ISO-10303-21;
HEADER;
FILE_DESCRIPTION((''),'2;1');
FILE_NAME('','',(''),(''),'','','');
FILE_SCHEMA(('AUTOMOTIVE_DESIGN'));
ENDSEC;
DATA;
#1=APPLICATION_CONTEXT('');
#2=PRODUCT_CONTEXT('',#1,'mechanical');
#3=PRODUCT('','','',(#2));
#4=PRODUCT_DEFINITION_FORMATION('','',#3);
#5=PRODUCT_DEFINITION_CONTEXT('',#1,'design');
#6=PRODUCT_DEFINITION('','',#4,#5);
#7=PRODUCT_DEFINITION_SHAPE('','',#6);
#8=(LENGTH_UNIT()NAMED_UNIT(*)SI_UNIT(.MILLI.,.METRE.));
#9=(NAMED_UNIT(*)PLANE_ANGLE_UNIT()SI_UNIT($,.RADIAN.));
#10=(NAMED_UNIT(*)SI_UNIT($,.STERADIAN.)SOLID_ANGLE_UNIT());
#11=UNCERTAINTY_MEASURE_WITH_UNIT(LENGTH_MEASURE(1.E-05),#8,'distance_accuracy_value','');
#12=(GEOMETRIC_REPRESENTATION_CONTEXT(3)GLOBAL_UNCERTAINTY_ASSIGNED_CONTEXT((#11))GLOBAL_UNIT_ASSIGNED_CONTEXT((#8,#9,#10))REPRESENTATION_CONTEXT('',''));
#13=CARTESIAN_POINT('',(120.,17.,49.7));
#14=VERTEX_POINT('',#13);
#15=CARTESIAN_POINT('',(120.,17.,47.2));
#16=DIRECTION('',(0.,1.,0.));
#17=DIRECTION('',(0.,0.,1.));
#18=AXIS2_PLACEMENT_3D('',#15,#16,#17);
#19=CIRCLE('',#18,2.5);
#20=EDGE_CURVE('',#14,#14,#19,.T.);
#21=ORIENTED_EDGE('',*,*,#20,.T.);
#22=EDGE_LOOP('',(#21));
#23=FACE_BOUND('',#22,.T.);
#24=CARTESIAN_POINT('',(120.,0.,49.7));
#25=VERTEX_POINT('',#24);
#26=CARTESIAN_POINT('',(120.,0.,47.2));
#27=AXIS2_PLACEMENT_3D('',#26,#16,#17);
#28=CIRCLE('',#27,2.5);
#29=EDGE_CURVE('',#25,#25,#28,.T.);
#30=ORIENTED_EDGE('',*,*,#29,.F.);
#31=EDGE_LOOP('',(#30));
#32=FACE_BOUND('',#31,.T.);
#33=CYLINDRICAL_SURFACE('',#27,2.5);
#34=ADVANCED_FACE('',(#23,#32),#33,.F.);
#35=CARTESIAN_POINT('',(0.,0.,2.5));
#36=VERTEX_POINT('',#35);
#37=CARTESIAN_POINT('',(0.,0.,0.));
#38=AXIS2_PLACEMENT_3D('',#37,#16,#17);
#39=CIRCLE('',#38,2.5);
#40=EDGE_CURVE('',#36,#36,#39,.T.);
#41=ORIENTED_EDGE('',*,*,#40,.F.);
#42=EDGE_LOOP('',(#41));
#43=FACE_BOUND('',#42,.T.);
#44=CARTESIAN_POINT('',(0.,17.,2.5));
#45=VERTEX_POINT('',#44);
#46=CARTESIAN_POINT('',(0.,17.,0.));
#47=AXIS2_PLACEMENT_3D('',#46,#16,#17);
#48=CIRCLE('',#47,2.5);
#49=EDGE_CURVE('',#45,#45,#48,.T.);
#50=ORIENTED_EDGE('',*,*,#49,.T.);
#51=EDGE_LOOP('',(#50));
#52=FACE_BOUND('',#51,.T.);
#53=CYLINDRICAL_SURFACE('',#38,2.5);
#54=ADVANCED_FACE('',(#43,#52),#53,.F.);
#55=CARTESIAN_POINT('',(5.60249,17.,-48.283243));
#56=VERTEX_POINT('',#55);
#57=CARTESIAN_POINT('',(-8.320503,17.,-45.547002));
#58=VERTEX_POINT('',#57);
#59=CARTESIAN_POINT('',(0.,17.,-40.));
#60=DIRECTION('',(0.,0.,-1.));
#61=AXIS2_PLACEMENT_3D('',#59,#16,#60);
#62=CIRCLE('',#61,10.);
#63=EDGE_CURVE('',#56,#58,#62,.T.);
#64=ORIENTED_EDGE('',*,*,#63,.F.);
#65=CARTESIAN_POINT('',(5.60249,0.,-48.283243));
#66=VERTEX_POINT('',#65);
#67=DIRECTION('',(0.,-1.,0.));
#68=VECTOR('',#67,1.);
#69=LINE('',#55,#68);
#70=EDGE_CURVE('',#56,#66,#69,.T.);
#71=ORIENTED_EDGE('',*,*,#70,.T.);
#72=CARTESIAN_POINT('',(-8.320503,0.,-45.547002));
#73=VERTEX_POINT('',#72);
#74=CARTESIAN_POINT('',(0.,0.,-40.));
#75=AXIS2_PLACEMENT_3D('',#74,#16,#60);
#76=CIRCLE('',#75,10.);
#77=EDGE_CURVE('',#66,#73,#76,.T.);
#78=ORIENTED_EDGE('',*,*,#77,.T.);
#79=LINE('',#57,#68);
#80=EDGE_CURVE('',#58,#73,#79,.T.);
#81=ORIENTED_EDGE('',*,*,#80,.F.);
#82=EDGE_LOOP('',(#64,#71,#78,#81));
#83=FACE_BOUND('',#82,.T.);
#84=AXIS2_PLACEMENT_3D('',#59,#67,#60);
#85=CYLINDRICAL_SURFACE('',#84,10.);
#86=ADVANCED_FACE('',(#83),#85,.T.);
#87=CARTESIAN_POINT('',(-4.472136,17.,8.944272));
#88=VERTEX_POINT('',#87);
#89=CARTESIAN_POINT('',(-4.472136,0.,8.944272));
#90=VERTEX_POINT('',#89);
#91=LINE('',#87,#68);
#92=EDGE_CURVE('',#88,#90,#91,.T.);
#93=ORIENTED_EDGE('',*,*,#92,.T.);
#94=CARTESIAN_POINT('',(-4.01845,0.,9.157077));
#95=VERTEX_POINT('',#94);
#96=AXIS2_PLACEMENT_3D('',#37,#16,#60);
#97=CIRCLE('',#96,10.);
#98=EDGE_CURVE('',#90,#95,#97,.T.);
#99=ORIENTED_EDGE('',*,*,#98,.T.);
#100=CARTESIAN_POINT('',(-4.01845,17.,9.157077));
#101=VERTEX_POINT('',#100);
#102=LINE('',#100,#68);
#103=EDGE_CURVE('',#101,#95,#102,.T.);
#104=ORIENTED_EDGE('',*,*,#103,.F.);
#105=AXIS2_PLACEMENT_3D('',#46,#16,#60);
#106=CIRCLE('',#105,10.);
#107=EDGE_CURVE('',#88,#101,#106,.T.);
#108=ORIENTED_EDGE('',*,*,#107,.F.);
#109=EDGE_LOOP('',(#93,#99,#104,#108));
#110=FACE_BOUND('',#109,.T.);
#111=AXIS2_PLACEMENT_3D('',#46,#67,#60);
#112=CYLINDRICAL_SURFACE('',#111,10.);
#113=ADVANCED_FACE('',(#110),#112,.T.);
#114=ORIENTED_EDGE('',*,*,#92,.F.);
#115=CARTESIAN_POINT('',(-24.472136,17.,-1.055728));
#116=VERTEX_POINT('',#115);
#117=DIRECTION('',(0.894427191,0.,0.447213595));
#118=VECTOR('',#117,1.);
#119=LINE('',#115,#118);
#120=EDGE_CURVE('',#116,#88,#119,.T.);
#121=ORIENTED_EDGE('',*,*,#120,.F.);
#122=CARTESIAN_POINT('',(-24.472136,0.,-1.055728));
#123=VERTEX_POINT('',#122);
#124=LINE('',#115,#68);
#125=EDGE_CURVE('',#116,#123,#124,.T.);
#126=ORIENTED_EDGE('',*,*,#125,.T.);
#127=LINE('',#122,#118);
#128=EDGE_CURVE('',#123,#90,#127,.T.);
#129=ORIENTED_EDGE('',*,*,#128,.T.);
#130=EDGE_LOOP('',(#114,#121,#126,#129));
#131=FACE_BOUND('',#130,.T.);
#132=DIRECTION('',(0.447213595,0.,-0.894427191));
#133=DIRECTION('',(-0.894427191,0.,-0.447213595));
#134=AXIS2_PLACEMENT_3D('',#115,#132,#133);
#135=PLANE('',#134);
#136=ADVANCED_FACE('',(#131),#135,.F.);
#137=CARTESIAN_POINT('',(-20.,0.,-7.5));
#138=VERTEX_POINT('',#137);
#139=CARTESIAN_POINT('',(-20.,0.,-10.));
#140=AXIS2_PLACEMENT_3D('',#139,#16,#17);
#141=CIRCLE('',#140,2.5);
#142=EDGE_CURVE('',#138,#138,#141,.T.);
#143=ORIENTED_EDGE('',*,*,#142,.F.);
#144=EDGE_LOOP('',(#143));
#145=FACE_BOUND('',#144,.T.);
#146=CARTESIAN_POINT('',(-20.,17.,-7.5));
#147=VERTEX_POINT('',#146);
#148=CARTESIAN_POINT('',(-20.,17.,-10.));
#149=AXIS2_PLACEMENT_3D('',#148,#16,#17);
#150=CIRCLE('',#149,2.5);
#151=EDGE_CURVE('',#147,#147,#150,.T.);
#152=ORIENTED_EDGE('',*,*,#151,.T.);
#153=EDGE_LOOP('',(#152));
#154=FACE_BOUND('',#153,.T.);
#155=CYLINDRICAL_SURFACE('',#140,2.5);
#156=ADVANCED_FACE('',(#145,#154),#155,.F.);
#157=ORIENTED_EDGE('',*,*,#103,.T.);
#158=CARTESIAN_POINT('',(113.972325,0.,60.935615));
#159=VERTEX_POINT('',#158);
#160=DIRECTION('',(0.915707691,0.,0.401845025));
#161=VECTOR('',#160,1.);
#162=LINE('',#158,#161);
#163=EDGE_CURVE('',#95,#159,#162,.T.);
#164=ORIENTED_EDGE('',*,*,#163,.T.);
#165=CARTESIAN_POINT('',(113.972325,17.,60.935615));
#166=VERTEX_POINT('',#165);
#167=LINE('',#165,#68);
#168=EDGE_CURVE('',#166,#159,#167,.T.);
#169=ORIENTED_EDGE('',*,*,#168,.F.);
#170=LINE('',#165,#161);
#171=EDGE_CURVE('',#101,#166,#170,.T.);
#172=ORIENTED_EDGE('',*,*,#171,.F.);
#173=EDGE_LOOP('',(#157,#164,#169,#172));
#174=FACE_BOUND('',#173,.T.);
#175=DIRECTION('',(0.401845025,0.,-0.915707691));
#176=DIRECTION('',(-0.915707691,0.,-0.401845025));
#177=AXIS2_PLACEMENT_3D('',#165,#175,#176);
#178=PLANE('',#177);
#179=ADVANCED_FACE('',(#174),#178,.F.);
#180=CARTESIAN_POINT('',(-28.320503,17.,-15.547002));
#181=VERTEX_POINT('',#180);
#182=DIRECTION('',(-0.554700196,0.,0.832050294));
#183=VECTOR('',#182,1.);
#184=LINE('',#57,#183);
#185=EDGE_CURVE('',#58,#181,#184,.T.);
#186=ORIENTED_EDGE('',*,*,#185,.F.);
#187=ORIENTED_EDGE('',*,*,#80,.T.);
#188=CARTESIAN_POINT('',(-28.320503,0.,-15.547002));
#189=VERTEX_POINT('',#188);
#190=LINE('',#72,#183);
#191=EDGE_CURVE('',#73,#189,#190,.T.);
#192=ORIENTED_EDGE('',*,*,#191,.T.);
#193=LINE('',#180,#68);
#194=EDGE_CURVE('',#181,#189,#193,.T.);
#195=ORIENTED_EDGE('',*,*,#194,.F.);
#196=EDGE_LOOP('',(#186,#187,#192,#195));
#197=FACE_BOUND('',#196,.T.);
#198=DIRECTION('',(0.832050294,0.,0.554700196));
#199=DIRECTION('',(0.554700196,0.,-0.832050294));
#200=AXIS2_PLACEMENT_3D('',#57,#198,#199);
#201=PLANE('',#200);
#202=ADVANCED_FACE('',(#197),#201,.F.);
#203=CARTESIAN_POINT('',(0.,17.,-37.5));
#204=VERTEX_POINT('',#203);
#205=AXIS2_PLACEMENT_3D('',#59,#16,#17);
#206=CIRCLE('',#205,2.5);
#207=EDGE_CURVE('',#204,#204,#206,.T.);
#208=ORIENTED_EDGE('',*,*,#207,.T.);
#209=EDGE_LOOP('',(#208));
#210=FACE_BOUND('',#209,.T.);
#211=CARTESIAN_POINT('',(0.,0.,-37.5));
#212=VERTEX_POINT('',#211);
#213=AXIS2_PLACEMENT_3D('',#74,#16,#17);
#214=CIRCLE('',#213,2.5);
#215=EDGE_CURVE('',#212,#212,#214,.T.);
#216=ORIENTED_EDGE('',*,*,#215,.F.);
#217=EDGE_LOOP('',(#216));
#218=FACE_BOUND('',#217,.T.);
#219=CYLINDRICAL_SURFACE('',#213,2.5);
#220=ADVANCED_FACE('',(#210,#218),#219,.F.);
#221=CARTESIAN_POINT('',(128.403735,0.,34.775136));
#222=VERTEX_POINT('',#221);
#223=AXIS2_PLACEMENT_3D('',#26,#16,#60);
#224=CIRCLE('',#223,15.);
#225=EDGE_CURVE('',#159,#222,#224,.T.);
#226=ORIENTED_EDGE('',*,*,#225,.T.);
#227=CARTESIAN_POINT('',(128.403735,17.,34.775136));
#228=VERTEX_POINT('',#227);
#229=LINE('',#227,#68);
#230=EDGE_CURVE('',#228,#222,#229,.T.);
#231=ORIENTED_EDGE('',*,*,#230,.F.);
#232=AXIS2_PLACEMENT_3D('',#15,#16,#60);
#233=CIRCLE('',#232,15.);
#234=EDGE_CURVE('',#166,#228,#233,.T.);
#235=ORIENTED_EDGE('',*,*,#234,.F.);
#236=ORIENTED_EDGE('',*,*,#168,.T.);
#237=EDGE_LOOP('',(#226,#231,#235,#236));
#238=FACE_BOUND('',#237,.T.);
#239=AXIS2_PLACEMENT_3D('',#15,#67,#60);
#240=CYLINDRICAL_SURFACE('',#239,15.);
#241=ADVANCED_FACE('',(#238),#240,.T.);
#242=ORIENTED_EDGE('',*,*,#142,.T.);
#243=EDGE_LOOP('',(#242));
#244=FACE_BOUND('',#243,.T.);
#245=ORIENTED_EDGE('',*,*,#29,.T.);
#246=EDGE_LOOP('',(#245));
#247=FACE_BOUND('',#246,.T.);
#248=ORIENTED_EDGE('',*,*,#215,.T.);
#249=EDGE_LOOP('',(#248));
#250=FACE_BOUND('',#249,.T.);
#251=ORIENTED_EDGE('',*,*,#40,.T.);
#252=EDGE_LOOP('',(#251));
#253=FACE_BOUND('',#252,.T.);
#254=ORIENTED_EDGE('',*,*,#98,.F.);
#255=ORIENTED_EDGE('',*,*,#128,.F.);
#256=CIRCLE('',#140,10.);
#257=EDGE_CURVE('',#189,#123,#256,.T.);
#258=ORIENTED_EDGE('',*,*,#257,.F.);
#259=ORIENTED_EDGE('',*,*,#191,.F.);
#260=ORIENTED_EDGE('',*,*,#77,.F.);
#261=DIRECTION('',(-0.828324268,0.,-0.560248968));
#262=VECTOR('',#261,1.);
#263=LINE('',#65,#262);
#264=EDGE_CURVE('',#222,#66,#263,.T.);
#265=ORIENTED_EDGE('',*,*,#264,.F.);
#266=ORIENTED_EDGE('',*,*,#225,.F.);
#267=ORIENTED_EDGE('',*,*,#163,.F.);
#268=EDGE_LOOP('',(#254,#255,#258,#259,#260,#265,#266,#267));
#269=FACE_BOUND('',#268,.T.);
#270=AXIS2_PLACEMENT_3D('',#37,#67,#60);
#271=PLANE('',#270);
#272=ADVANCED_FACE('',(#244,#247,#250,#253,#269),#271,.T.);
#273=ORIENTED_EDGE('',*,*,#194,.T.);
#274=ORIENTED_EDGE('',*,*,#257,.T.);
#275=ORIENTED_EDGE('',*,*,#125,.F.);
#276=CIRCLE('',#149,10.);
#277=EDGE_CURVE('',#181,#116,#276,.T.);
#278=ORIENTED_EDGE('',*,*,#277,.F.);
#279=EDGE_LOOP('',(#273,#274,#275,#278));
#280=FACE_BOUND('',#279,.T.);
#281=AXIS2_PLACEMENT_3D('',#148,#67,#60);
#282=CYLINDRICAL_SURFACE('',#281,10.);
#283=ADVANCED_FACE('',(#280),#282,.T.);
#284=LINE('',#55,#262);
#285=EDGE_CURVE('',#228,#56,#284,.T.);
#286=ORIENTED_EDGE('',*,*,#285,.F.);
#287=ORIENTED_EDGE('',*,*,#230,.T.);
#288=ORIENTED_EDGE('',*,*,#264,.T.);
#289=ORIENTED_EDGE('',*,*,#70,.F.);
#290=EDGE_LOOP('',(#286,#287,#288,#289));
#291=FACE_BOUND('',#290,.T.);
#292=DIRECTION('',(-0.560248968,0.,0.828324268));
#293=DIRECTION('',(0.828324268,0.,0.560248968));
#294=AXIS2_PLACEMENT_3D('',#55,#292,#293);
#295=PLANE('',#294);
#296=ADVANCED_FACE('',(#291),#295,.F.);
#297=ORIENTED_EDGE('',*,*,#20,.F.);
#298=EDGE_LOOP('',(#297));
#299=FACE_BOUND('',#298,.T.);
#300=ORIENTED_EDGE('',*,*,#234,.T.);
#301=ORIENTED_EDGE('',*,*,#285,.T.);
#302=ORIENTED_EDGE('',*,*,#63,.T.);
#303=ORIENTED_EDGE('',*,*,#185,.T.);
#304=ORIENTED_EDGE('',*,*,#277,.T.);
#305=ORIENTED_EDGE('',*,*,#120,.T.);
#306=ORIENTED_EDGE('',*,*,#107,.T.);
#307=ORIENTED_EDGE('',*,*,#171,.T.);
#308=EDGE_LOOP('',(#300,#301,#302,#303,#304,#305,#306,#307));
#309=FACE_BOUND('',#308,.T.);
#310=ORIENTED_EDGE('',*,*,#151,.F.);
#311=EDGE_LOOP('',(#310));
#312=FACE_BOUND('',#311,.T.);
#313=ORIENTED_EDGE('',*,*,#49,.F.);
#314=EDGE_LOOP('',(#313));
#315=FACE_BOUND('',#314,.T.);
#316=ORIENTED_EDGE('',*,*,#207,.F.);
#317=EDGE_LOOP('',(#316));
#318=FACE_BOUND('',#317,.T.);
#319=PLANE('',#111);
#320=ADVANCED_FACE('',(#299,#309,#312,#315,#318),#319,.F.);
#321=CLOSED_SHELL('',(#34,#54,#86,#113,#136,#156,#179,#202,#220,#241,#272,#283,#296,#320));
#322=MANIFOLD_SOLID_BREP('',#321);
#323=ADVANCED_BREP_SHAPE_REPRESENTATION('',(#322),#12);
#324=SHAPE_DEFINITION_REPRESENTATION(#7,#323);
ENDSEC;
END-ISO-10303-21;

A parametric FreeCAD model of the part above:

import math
import FreeCAD as App
import Part
import Sketcher

V = App.Vector

doc = App.newDocument("Part")
body = doc.addObject("PartDesign::Body", "Body")

# Sketch on XZ plane
sketch1 = body.newObject("Sketcher::SketchObject", "Sketch")
sketch1.AttachmentSupport = (doc.getObject("XZ_Plane"), [""])
sketch1.MapMode = "FlatFace"
sketch1.addGeometry(Part.LineSegment(V(128.403735, 34.775136, 0), V(5.60249, -48.283243, 0)), False)
sketch1.addGeometry(Part.ArcOfCircle(Part.Circle(V(0, -40, 0), V(0, 0, 1), 10), math.radians(-146.309932), math.radians(-55.926983)), False)
sketch1.addGeometry(Part.LineSegment(V(-8.320503, -45.547002, 0), V(-28.320503, -15.547002, 0)), False)
sketch1.addGeometry(Part.ArcOfCircle(Part.Circle(V(-20, -10, 0), V(0, 0, 1), 10), math.radians(116.565051), math.radians(213.690068)), False)
sketch1.addGeometry(Part.LineSegment(V(-24.472136, -1.055728, 0), V(-4.472136, 8.944272, 0)), False)
sketch1.addGeometry(Part.ArcOfCircle(Part.Circle(V(0, 0.000001, 0), V(0, 0, 1), 9.999999), math.radians(113.693571), math.radians(116.565051)), False)
sketch1.addGeometry(Part.LineSegment(V(-4.01845, 9.157077, 0), V(113.972325, 60.935615, 0)), False)
sketch1.addGeometry(Part.ArcOfCircle(Part.Circle(V(120, 47.2, 0), V(0, 0, 1), 15), math.radians(-55.926983), math.radians(113.693571)), False)
sketch1.addConstraint(Sketcher.Constraint("Tangent", 0, 2, 1, 2))
sketch1.addConstraint(Sketcher.Constraint("Tangent", 1, 1, 2, 1))
sketch1.addConstraint(Sketcher.Constraint("Tangent", 2, 2, 3, 2))
sketch1.addConstraint(Sketcher.Constraint("Tangent", 3, 1, 4, 1))
sketch1.addConstraint(Sketcher.Constraint("Tangent", 4, 2, 5, 2))
sketch1.addConstraint(Sketcher.Constraint("Tangent", 5, 1, 6, 1))
sketch1.addConstraint(Sketcher.Constraint("Tangent", 6, 2, 7, 2))
sketch1.addConstraint(Sketcher.Constraint("Tangent", 7, 1, 0, 1))
sketch1.addConstraint(Sketcher.Constraint("Coincident", 5, 3, -1, 1))
sketch1.addConstraint(Sketcher.Constraint("Equal", 1, 3))
sketch1.addConstraint(Sketcher.Constraint("Equal", 3, 5))
sketch1.addConstraint(Sketcher.Constraint("PointOnObject", 1, 3, -2))
sketch1.addConstraint(Sketcher.Constraint("Radius", 1, 10.0))
sketch1.addConstraint(Sketcher.Constraint("Radius", 7, 15.0))
sketch1.addConstraint(Sketcher.Constraint("DistanceY", 1, 3, -1, 1, 40.0))
sketch1.addConstraint(Sketcher.Constraint("DistanceX", 3, 3, -1, 1, 20.0))
sketch1.addConstraint(Sketcher.Constraint("DistanceY", 3, 3, -1, 1, 10.0))
sketch1.addConstraint(Sketcher.Constraint("DistanceX", -1, 1, 7, 3, 120.0))
sketch1.addConstraint(Sketcher.Constraint("DistanceY", -1, 1, 7, 3, 47.2))
pad1 = body.newObject("PartDesign::Pad", "Pad")
pad1.Profile = sketch1
pad1.Length = 17
pad1.Reversed = True

# Sketch on XZ plane
sketch2 = body.newObject("Sketcher::SketchObject", "Sketch001")
sketch2.AttachmentSupport = (doc.getObject("XZ_Plane"), [""])
sketch2.MapMode = "FlatFace"
sketch2.AttachmentOffset = App.Placement(V(0, 0, -17), App.Rotation())
sketch2.addGeometry(Part.Circle(V(0, -40, 0), V(0, 0, 1), 2.5), False)
sketch2.addGeometry(Part.Circle(V(0, 0, 0), V(0, 0, 1), 2.5), False)
sketch2.addGeometry(Part.Circle(V(120, 47.2, 0), V(0, 0, 1), 2.5), False)
sketch2.addGeometry(Part.Circle(V(-20, -10, 0), V(0, 0, 1), 2.5), False)
sketch2.addConstraint(Sketcher.Constraint("Coincident", 1, 3, -1, 1))
sketch2.addConstraint(Sketcher.Constraint("Equal", 0, 1))
sketch2.addConstraint(Sketcher.Constraint("Equal", 1, 2))
sketch2.addConstraint(Sketcher.Constraint("Equal", 2, 3))
sketch2.addConstraint(Sketcher.Constraint("PointOnObject", 0, 3, -2))
sketch2.addConstraint(Sketcher.Constraint("Diameter", 0, 5.0))
sketch2.addConstraint(Sketcher.Constraint("DistanceY", 0, 3, -1, 1, 40.0))
sketch2.addConstraint(Sketcher.Constraint("DistanceX", -1, 1, 2, 3, 120.0))
sketch2.addConstraint(Sketcher.Constraint("DistanceX", 3, 3, -1, 1, 20.0))
sketch2.addConstraint(Sketcher.Constraint("DistanceY", 3, 3, -1, 1, 10.0))
sketch2.addConstraint(Sketcher.Constraint("DistanceY", -1, 1, 2, 3, 47.2))
pocket1 = body.newObject("PartDesign::Pocket", "Pocket")
pocket1.Profile = sketch2
pocket1.Type = "ThroughAll"
pocket1.Reversed = True

doc.recompute()
